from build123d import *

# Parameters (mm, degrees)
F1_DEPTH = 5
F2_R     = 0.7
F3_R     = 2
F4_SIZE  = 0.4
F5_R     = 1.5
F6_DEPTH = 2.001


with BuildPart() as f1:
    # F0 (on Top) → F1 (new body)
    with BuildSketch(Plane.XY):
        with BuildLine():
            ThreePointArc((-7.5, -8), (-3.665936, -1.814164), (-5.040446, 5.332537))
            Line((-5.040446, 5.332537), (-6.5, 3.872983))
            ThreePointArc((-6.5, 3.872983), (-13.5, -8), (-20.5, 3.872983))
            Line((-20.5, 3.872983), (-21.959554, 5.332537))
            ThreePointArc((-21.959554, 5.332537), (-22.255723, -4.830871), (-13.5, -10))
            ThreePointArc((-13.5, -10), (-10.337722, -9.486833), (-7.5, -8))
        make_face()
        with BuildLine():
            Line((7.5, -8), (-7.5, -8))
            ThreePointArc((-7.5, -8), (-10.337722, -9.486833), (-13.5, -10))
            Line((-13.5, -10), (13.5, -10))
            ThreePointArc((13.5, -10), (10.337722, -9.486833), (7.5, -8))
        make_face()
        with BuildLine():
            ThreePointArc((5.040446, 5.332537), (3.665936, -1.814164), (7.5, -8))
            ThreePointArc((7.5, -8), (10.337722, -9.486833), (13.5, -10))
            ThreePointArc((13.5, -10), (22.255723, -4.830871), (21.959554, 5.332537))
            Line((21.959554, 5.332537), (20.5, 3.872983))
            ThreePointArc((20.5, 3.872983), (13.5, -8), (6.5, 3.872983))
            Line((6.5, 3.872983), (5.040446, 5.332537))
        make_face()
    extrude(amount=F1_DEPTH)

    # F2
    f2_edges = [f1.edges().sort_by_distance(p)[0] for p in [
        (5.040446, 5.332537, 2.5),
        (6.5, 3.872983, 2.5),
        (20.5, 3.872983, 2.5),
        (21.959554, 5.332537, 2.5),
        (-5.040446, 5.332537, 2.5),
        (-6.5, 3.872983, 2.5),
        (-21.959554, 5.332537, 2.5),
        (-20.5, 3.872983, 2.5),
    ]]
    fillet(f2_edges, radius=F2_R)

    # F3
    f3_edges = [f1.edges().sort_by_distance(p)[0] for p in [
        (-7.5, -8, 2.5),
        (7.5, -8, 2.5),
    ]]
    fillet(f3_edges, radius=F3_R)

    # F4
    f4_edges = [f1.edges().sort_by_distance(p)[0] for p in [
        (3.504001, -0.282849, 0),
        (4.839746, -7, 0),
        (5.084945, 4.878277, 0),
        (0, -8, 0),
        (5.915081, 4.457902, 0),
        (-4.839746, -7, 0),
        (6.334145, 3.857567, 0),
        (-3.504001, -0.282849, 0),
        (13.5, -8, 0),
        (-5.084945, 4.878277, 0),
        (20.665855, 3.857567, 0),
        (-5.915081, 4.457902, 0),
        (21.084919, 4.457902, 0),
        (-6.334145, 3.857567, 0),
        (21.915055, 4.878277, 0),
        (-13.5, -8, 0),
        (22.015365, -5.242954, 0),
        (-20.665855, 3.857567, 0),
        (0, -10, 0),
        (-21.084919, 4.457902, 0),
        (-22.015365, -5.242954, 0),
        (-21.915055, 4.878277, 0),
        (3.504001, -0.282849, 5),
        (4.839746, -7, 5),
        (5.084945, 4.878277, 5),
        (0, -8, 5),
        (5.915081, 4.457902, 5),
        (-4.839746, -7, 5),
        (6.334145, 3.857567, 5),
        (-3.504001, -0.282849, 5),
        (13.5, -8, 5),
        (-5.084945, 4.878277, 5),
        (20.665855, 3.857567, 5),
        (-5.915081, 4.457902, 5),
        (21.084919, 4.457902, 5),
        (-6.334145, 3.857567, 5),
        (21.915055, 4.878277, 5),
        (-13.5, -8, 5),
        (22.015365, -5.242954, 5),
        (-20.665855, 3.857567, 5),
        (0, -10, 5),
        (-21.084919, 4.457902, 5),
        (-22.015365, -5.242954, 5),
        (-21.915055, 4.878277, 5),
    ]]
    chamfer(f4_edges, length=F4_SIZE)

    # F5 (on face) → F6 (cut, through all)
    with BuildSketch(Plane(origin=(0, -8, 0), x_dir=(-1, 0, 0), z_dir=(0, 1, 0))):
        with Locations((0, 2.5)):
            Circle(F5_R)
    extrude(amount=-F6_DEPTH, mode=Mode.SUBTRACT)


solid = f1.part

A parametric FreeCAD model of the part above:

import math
import FreeCAD as App
import Part
import Sketcher
from FreeCAD import Vector
Q = App.Units.Quantity


def edges_at(feature, points):
    """Names of the edges that pass closest to the given points."""
    edges = feature.Shape.Edges
    near = lambda p: min(range(len(edges)), key=lambda i: edges[i].distToShape(Part.Vertex(*p))[0])
    return sorted({f"Edge{near(p) + 1}" for p in points})

doc = App.newDocument("Part")
body = doc.addObject("PartDesign::Body", "Body")

# Sketch on XY plane
sketch1 = doc.addObject("Sketcher::SketchObject", "Sketch")
body.addObject(sketch1)
sketch1.AttachmentSupport = (doc.XY_Plane, [""])
sketch1.MapMode = "FlatFace"
sketch1.addGeometry([
    Part.ArcOfCircle(Part.Circle(Vector(-13.5, 0, 0), Vector(0, 0, 1), 10), math.radians(-53), math.radians(32)),  # 0
    Part.LineSegment(Vector(-5, 5.3, 0), Vector(-6.5, 3.9, 0)),  # 1
    Part.ArcOfCircle(Part.Circle(Vector(-13.5, 0, 0), Vector(0, 0, 1), 8), math.radians(151), math.radians(389)),  # 2
    Part.LineSegment(Vector(-20.5, 3.9, 0), Vector(-22, 5.3, 0)),  # 3
    Part.ArcOfCircle(Part.Circle(Vector(-13.5, 0, 0), Vector(0, 0, 1), 10), math.radians(148), math.radians(270)),  # 4
    Part.LineSegment(Vector(-13.5, -10, 0), Vector(13.5, -10, 0)),  # 5
    Part.ArcOfCircle(Part.Circle(Vector(13.5, 0, 0), Vector(0, 0, 1), 10), math.radians(-90), math.radians(32)),  # 6
    Part.LineSegment(Vector(22, 5.3, 0), Vector(20.5, 3.9, 0)),  # 7
    Part.ArcOfCircle(Part.Circle(Vector(13.5, 0, 0), Vector(0, 0, 1), 8), math.radians(151), math.radians(389)),  # 8
    Part.LineSegment(Vector(6.5, 3.9, 0), Vector(5, 5.3, 0)),  # 9
    Part.ArcOfCircle(Part.Circle(Vector(13.5, 0, 0), Vector(0, 0, 1), 10), math.radians(148), math.radians(233)),  # 10
    Part.LineSegment(Vector(7.5, -8, 0), Vector(-7.5, -8, 0)),  # 11
], False)
sketch1.addConstraint([
    Sketcher.Constraint("Coincident", 0, 2, 1, 1),
    Sketcher.Constraint("Coincident", 1, 2, 2, 2),
    Sketcher.Constraint("Coincident", 2, 1, 3, 1),
    Sketcher.Constraint("Coincident", 3, 2, 4, 1),
    Sketcher.Constraint("Tangent", 4, 2, 5, 1),
    Sketcher.Constraint("Tangent", 5, 2, 6, 1),
    Sketcher.Constraint("Coincident", 6, 2, 7, 1),
    Sketcher.Constraint("Coincident", 7, 2, 8, 2),
    Sketcher.Constraint("Coincident", 8, 1, 9, 1),
    Sketcher.Constraint("Coincident", 9, 2, 10, 1),
    Sketcher.Constraint("Coincident", 10, 2, 11, 1),
    Sketcher.Constraint("Coincident", 11, 2, 0, 1),
    Sketcher.Constraint("Horizontal", 5),
    Sketcher.Constraint("Horizontal", 11),
    Sketcher.Constraint("Coincident", 2, 3, 0, 3),
    Sketcher.Constraint("Coincident", 4, 3, 0, 3),
    Sketcher.Constraint("Coincident", 8, 3, 6, 3),
    Sketcher.Constraint("Coincident", 10, 3, 6, 3),
    Sketcher.Constraint("Equal", 0, 4),
    Sketcher.Constraint("Equal", 4, 6),
    Sketcher.Constraint("Equal", 2, 8),
    Sketcher.Constraint("Equal", 6, 10),
    Sketcher.Constraint("Symmetric", 0, 3, 6, 3, -1, 1),
    Sketcher.Constraint("Perpendicular", 1, 3),
    Sketcher.Constraint("Perpendicular", 3, 7),
    Sketcher.Constraint("Perpendicular", 7, 9),
    Sketcher.Constraint("Horizontal", 1, 2, 2, 1),
    Sketcher.Constraint("Horizontal", 0, 2, 3, 2),
    Sketcher.Constraint("Horizontal", 3, 2, 6, 2),
    Sketcher.Constraint("Horizontal", 7, 2, 8, 1),
    Sketcher.Constraint("Radius", 0, Q("10 mm")),
    Sketcher.Constraint("Radius", 2, Q("8 mm")),
    Sketcher.Constraint("DistanceX", 5, 1, 5, 2, Q("27 mm")),
    Sketcher.Constraint("DistanceX", 11, 2, 11, 1, Q("15 mm")),
    Sketcher.Constraint("DistanceX", 0, 3, 1, 2, Q("6.999999 mm")),
])
pad1 = doc.addObject("PartDesign::Pad", "Pad")
body.addObject(pad1)
pad1.Profile = sketch1
pad1.Length = 5
doc.recompute()

fillet = doc.addObject("PartDesign::Fillet", "Fillet")
body.addObject(fillet)
fillet.Base = (pad1, edges_at(pad1, [
    (5.04, 5.333, 2.5),
    (6.5, 3.873, 2.5),
    (20.5, 3.873, 2.5),
    (21.96, 5.333, 2.5),
    (-5.04, 5.333, 2.5),
    (-6.5, 3.873, 2.5),
    (-21.96, 5.333, 2.5),
    (-20.5, 3.873, 2.5),
]))
fillet.Radius = 0.7
doc.recompute()

fillet2 = doc.addObject("PartDesign::Fillet", "Fillet001")
body.addObject(fillet2)
fillet2.Base = (fillet, edges_at(fillet, [(-7.5, -8, 2.5), (7.5, -8, 2.5)]))
fillet2.Radius = 2
doc.recompute()

chamfer = doc.addObject("PartDesign::Chamfer", "Chamfer")
body.addObject(chamfer)
chamfer.Base = (fillet2, edges_at(fillet2, [
    (3.504, -0.283, 0),
    (4.84, -7, 0),
    (5.085, 4.878, 0),
    (0, -8, 0),
    (5.915, 4.458, 0),
    (-4.84, -7, 0),
    (6.334, 3.858, 0),
    (-3.504, -0.283, 0),
    (13.5, -8, 0),
    (-5.085, 4.878, 0),
    (20.666, 3.858, 0),
    (-5.915, 4.458, 0),
    (21.085, 4.458, 0),
    (-6.334, 3.858, 0),
    (21.915, 4.878, 0),
    (-13.5, -8, 0),
    (22.015, -5.243, 0),
    (-20.666, 3.858, 0),
    (0, -10, 0),
    (-21.085, 4.458, 0),
    (-22.015, -5.243, 0),
    (-21.915, 4.878, 0),
    (3.504, -0.283, 5),
    (4.84, -7, 5),
    (5.085, 4.878, 5),
    (0, -8, 5),
    (5.915, 4.458, 5),
    (-4.84, -7, 5),
    (6.334, 3.858, 5),
    (-3.504, -0.283, 5),
    (13.5, -8, 5),
    (-5.085, 4.878, 5),
    (20.666, 3.858, 5),
    (-5.915, 4.458, 5),
    (21.085, 4.458, 5),
    (-6.334, 3.858, 5),
    (21.915, 4.878, 5),
    (-13.5, -8, 5),
    (22.015, -5.243, 5),
    (-20.666, 3.858, 5),
    (0, -10, 5),
    (-21.085, 4.458, 5),
    (-22.015, -5.243, 5),
    (-21.915, 4.878, 5),
]))
chamfer.Size = 0.4

# Sketch on XZ plane
sketch2 = doc.addObject("Sketcher::SketchObject", "Sketch001")
body.addObject(sketch2)
sketch2.AttachmentSupport = (doc.XZ_Plane, [""])
sketch2.MapMode = "FlatFace"
sketch2.AttachmentOffset = App.Placement(Vector(0, 0, 8), App.Rotation())
sketch2.addGeometry(Part.Circle(Vector(0, 2.5, 0), Vector(0, 0, 1), 1.5), False)
sketch2.addConstraint([
    Sketcher.Constraint("PointOnObject", 0, 3, -2),
    Sketcher.Constraint("Diameter", 0, Q("3 mm")),
    Sketcher.Constraint("DistanceY", -1, 1, 0, 3, Q("2.5 mm")),
])
pocket1 = doc.addObject("PartDesign::Pocket", "Pocket")
body.addObject(pocket1)
pocket1.Profile = sketch2
pocket1.Type = "ThroughAll"
pocket1.Reversed = True

doc.recompute()
